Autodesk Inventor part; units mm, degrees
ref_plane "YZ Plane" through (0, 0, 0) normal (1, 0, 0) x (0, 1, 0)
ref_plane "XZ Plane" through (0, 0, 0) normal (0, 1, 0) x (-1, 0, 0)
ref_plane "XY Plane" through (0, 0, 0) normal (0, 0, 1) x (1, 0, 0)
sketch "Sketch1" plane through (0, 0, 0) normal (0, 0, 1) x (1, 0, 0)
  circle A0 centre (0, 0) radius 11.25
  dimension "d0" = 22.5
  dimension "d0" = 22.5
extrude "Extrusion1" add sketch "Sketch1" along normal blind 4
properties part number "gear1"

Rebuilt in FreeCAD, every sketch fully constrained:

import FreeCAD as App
import Part
import Sketcher
from FreeCAD import Vector

doc = App.newDocument("Part")
params = doc.addObject("Spreadsheet::Sheet", "Params")
for row, (alias, value) in enumerate([
    ("sketch1_diameter", "22.5 mm"),
    ("pad1_length", "4 mm"),
], start=1):
    params.set(f"A{row}", alias)
    params.set(f"B{row}", "=" + value)
    params.setAlias(f"B{row}", alias)

body = doc.addObject("PartDesign::Body", "Body")

sketch1 = body.newObject("Sketcher::SketchObject", "Sketch")
sketch1.AttachmentSupport = (doc.getObject("XY_Plane"), [""])
sketch1.MapMode = "FlatFace"
sketch1.addGeometry(Part.Circle(Vector(0, 0, 0), Vector(0, 0, 1), 11.25), False)
sketch1.addConstraint([
    Sketcher.Constraint("Coincident", 0, 3, -1, 1),
    Sketcher.Constraint("Diameter", 0, 22.5),
])
sketch1.setExpression("Constraints[1]", "Params.sketch1_diameter")
pad1 = body.newObject("PartDesign::Pad", "Pad")
pad1.Profile = sketch1
pad1.setExpression("Length", "Params.pad1_length")

doc.recompute()
